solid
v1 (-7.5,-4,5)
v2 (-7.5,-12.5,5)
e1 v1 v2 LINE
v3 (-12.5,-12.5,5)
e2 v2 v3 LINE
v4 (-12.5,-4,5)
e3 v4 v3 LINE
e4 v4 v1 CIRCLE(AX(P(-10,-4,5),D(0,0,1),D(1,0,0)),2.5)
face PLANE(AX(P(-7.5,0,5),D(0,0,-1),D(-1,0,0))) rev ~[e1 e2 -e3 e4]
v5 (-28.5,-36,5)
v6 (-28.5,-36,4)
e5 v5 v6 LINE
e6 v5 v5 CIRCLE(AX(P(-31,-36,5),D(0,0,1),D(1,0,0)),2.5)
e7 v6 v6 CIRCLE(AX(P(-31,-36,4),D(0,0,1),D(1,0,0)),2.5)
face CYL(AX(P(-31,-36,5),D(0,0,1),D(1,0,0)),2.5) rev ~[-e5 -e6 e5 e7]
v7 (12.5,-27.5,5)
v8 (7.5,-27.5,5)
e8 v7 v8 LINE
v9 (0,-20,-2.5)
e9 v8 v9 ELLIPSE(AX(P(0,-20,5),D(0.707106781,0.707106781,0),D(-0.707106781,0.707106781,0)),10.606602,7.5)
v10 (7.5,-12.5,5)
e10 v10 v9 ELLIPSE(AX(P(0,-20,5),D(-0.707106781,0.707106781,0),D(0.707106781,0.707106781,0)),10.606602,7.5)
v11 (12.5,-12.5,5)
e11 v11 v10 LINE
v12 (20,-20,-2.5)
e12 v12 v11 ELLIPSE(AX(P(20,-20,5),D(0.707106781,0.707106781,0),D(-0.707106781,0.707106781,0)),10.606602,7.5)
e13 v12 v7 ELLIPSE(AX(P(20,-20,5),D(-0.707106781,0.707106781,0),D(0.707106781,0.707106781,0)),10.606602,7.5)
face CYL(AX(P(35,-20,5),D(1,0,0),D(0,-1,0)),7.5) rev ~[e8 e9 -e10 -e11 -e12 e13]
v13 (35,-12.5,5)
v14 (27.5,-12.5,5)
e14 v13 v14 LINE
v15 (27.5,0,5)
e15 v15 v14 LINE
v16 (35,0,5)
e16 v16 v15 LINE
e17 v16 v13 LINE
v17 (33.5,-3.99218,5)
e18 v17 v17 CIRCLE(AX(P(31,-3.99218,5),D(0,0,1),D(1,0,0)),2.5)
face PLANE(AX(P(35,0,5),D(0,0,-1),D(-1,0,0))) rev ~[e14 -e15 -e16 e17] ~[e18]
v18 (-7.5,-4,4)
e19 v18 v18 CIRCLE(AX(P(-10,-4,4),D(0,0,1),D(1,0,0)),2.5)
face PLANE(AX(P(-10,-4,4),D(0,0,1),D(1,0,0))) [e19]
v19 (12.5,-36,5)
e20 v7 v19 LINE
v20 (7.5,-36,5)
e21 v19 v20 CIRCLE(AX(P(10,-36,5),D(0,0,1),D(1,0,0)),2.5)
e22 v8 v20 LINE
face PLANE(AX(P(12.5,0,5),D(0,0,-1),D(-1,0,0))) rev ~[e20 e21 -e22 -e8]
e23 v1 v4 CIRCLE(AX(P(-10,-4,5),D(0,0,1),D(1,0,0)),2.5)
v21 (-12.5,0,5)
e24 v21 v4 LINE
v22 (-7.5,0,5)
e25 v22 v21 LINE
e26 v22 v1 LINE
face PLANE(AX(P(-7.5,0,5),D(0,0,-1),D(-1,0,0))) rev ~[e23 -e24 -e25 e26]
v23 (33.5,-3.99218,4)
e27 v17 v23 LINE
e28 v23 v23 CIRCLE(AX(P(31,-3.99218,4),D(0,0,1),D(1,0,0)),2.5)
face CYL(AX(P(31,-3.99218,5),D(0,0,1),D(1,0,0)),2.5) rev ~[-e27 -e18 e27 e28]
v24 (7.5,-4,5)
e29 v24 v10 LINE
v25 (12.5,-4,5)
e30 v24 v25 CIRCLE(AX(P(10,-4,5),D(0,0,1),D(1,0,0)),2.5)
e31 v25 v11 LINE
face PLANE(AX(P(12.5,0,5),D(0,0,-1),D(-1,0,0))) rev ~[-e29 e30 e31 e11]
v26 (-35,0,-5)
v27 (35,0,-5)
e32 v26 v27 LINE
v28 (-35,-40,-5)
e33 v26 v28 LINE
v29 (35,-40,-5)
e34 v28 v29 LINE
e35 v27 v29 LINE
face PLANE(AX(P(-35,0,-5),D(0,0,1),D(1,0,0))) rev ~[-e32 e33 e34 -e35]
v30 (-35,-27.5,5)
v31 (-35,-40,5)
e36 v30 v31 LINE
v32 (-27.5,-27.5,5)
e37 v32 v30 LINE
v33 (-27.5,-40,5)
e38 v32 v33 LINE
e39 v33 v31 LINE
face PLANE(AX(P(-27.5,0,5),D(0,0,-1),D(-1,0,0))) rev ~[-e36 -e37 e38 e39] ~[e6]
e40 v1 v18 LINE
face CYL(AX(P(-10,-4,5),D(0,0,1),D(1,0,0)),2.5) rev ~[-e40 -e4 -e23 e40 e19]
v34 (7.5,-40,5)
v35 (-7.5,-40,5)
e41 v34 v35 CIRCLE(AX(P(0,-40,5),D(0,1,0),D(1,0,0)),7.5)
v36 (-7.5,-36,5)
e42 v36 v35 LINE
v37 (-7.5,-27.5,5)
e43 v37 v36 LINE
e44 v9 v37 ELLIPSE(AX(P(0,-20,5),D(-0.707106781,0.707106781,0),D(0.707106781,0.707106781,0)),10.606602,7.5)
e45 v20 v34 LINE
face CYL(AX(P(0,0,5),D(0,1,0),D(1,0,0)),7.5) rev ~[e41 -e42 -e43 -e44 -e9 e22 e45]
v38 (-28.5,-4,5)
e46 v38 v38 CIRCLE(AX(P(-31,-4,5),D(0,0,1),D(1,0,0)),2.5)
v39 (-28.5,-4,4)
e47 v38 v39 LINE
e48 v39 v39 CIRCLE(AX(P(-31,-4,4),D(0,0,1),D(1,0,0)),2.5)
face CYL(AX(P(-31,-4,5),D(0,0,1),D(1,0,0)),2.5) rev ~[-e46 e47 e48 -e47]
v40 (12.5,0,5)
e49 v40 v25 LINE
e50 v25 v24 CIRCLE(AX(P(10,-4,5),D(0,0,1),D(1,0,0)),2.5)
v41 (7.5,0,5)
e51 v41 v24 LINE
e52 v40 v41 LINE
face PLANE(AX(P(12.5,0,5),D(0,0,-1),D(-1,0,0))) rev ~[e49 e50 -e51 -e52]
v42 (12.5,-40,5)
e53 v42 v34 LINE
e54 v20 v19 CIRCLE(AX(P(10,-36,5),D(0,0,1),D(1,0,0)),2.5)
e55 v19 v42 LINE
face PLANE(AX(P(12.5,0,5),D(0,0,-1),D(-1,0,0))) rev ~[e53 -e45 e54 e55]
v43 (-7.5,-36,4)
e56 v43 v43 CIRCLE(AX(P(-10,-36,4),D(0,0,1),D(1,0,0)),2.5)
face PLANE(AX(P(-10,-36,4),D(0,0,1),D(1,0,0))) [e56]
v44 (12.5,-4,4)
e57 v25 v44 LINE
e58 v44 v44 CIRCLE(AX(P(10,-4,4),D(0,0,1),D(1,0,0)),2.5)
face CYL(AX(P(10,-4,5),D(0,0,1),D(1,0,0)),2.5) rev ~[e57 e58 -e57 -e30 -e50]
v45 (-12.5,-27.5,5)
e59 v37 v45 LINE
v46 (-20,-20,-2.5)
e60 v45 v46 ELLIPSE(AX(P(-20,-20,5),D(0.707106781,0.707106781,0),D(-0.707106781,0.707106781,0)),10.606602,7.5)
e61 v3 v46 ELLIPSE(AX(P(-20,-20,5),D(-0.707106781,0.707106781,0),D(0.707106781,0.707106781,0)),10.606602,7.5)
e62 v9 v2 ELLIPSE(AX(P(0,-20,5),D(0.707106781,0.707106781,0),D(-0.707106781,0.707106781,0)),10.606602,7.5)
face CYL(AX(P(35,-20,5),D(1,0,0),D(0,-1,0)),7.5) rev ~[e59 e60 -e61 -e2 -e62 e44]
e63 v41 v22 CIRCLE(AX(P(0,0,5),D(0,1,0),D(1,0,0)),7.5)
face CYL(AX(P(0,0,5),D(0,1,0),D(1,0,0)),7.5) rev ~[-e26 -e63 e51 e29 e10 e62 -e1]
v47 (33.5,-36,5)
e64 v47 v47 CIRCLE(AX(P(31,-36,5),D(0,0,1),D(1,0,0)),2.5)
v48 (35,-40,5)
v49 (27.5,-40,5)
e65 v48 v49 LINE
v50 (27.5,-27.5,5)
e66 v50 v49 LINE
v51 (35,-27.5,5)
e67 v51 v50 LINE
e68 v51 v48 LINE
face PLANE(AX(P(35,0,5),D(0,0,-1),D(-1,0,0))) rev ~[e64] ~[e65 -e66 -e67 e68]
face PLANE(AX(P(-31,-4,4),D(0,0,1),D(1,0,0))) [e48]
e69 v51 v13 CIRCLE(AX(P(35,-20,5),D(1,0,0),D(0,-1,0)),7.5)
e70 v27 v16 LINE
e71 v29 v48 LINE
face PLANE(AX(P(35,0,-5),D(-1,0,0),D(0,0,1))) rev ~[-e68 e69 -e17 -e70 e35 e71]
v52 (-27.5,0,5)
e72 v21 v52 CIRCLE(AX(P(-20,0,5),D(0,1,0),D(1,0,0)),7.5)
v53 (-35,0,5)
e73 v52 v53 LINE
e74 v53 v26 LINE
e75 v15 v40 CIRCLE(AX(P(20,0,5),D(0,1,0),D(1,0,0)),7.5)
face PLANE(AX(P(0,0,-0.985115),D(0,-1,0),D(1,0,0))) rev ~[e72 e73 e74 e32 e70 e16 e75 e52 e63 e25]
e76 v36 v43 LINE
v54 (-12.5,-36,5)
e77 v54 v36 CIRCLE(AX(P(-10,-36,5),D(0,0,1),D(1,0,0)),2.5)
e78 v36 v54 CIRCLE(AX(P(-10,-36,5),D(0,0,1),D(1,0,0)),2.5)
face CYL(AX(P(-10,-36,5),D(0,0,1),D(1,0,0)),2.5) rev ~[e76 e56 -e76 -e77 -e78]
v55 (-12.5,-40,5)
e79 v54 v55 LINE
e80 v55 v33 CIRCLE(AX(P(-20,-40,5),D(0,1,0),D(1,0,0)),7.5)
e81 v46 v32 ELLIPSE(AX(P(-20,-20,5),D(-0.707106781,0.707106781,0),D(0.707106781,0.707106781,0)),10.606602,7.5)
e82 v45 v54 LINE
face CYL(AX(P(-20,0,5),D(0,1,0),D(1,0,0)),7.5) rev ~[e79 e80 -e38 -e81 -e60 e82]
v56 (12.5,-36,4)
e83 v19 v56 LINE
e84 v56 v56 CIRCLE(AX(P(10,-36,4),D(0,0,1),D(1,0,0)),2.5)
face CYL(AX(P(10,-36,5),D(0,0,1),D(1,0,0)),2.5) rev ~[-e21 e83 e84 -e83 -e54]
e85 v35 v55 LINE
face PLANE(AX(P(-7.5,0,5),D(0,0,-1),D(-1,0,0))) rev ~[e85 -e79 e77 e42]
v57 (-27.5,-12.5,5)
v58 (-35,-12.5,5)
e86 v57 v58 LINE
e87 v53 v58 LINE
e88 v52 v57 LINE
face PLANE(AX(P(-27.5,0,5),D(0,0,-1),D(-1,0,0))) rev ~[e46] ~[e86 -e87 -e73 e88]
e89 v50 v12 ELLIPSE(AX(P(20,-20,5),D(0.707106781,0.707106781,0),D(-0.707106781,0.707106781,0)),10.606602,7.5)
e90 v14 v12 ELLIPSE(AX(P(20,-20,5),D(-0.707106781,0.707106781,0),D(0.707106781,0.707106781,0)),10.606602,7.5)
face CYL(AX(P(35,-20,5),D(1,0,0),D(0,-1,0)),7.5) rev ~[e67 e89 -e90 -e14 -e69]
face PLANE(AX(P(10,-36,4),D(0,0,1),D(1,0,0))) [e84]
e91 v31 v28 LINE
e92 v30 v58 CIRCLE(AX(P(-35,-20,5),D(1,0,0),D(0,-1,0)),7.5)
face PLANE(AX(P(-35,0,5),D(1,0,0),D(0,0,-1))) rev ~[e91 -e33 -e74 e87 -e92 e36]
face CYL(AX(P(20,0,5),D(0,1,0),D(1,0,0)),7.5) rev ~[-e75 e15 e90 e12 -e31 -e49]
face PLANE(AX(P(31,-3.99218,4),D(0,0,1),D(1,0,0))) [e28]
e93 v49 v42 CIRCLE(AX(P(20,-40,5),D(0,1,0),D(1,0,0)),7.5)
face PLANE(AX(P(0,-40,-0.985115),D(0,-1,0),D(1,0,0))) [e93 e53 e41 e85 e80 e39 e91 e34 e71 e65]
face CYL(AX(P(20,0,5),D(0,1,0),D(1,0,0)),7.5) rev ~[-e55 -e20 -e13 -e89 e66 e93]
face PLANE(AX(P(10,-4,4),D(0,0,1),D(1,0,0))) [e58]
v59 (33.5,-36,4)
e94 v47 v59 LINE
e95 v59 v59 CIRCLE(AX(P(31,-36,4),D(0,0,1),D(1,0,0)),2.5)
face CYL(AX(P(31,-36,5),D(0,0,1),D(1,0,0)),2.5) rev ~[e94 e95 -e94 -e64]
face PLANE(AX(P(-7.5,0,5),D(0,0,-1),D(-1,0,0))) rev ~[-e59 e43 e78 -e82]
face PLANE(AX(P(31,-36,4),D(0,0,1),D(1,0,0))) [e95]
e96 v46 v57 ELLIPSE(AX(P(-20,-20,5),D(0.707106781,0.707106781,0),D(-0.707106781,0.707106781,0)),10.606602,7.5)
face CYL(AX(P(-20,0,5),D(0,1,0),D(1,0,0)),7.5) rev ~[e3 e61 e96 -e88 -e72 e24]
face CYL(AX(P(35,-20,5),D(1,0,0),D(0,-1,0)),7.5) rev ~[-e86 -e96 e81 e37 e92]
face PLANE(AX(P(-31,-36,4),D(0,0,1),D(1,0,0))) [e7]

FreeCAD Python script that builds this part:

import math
import FreeCAD as App
import Part
import Sketcher

V = App.Vector
Q = App.Units.Quantity

doc = App.newDocument("Part")
params = doc.addObject("Spreadsheet::Sheet", "Params")
for row, (alias, value) in enumerate([
    ("sketch1_radius", "7.5 mm"),
    ("sketch1_width", "70 mm"),
    ("sketch1_width2", "5 mm"),
    ("sketch1_height", "10 mm"),
    ("pad1_length", "40 mm"),
    ("sketch2_radius", "7.5 mm"),
    ("sketch3_diameter", "5 mm"),
    ("pocket2_length", "1 mm"),
    ("sketch4_diameter", "5 mm"),
    ("pocket3_length", "1 mm"),
    ("sketch5_diameter", "5 mm"),
    ("pocket4_length", "1 mm"),
    ("sketch6_diameter", "5 mm"),
    ("pocket5_length", "1 mm"),
    ("sketch7_diameter", "5 mm"),
    ("pocket6_length", "1 mm"),
    ("sketch8_diameter", "5 mm"),
    ("pocket7_length", "1 mm"),
    ("sketch9_diameter", "5 mm"),
    ("pocket8_length", "1 mm"),
    ("sketch10_diameter", "5 mm"),
    ("pocket9_length", "1 mm"),
], start=1):
    params.set(f"A{row}", alias)
    params.set(f"B{row}", "=" + value)
    params.setAlias(f"B{row}", alias)

body = doc.addObject("PartDesign::Body", "Body")

# Sketch on XZ plane
sketch1 = doc.addObject("Sketcher::SketchObject", "Sketch")
body.addObject(sketch1)
sketch1.AttachmentSupport = (doc.XZ_Plane, [""])
sketch1.MapMode = "FlatFace"
sketch1.addGeometry(Part.LineSegment(V(-35, -5, 0), V(35, -5, 0)), False)
sketch1.addGeometry(Part.LineSegment(V(35, -5, 0), V(35, 5, 0)), False)
sketch1.addGeometry(Part.LineSegment(V(35, 5, 0), V(27.5, 5, 0)), False)
sketch1.addGeometry(Part.ArcOfCircle(Part.Circle(V(20, 5, 0), V(0, 0, 1), 7.5), math.radians(180), math.radians(360)), False)
sketch1.addGeometry(Part.LineSegment(V(12.5, 5, 0), V(7.5, 5, 0)), False)
sketch1.addGeometry(Part.ArcOfCircle(Part.Circle(V(0, 5, 0), V(0, 0, 1), 7.5), math.radians(180), math.radians(360)), False)
sketch1.addGeometry(Part.LineSegment(V(-7.5, 5, 0), V(-12.5, 5, 0)), False)
sketch1.addGeometry(Part.ArcOfCircle(Part.Circle(V(-20, 5, 0), V(0, 0, 1), 7.5), math.radians(180), math.radians(360)), False)
sketch1.addGeometry(Part.LineSegment(V(-27.5, 5, 0), V(-35, 5, 0)), False)
sketch1.addGeometry(Part.LineSegment(V(-35, 5, 0), V(-35, -5, 0)), False)
sketch1.addConstraint(Sketcher.Constraint("Coincident", 0, 2, 1, 1))
sketch1.addConstraint(Sketcher.Constraint("Coincident", 1, 2, 2, 1))
sketch1.addConstraint(Sketcher.Constraint("Coincident", 2, 2, 3, 2))
sketch1.addConstraint(Sketcher.Constraint("Coincident", 3, 1, 4, 1))
sketch1.addConstraint(Sketcher.Constraint("Coincident", 4, 2, 5, 2))
sketch1.addConstraint(Sketcher.Constraint("Coincident", 5, 1, 6, 1))
sketch1.addConstraint(Sketcher.Constraint("Coincident", 6, 2, 7, 2))
sketch1.addConstraint(Sketcher.Constraint("Coincident", 7, 1, 8, 1))
sketch1.addConstraint(Sketcher.Constraint("Coincident", 8, 2, 9, 1))
sketch1.addConstraint(Sketcher.Constraint("Coincident", 9, 2, 0, 1))
sketch1.addConstraint(Sketcher.Constraint("Horizontal", 0))
sketch1.addConstraint(Sketcher.Constraint("Vertical", 1))
sketch1.addConstraint(Sketcher.Constraint("Horizontal", 2))
sketch1.addConstraint(Sketcher.Constraint("Horizontal", 4))
sketch1.addConstraint(Sketcher.Constraint("Horizontal", 6))
sketch1.addConstraint(Sketcher.Constraint("Horizontal", 8))
sketch1.addConstraint(Sketcher.Constraint("Vertical", 9))
sketch1.addConstraint(Sketcher.Constraint("Equal", 3, 5))
sketch1.addConstraint(Sketcher.Constraint("Equal", 5, 7))
sketch1.addConstraint(Sketcher.Constraint("Symmetric", 0, 2, 8, 2, -1, 1))
sketch1.addConstraint(Sketcher.Constraint("Symmetric", 3, 3, 7, 3, -2))
sketch1.addConstraint(Sketcher.Constraint("Symmetric", 4, 2, 5, 1, -2))
sketch1.addConstraint(Sketcher.Constraint("Horizontal", 3, 3, 5, 3))
sketch1.addConstraint(Sketcher.Constraint("Horizontal", 7, 3, 1, 2))
sketch1.addConstraint(Sketcher.Constraint("Horizontal", 2, 2, 3, 1))
sketch1.addConstraint(Sketcher.Constraint("Horizontal", 6, 2, 7, 1))
sketch1.addConstraint(Sketcher.Constraint("Radius", 3, Q("7.5 mm")))
sketch1.addConstraint(Sketcher.Constraint("DistanceX", 0, 1, 0, 2, Q("70 mm")))
sketch1.addConstraint(Sketcher.Constraint("DistanceX", 4, 2, 4, 1, Q("5 mm")))
sketch1.addConstraint(Sketcher.Constraint("DistanceY", 1, 1, 1, 2, Q("10 mm")))
sketch1.setExpression("Constraints[26]", "Params.sketch1_radius")
sketch1.setExpression("Constraints[27]", "Params.sketch1_width")
sketch1.setExpression("Constraints[28]", "Params.sketch1_width2")
sketch1.setExpression("Constraints[29]", "Params.sketch1_height")
pad1 = doc.addObject("PartDesign::Pad", "Pad")
body.addObject(pad1)
pad1.Profile = sketch1
pad1.setExpression("Length", "Params.pad1_length")

# Sketch on YZ plane
sketch2 = doc.addObject("Sketcher::SketchObject", "Sketch001")
body.addObject(sketch2)
sketch2.AttachmentSupport = (doc.YZ_Plane, [""])
sketch2.MapMode = "FlatFace"
sketch2.AttachmentOffset = App.Placement(V(0, 0, 35), App.Rotation())
sketch2.addGeometry(Part.ArcOfCircle(Part.Circle(V(-20, 5, 0), V(0, 0, 1), 7.5), math.radians(180), math.radians(360)), False)
sketch2.addGeometry(Part.LineSegment(V(-12.5, 5, 0), V(-27.5, 5, 0)), False)
sketch2.addConstraint(Sketcher.Constraint("Coincident", 0, 1, 1, 2))
sketch2.addConstraint(Sketcher.Constraint("Coincident", 1, 1, 0, 2))
sketch2.addConstraint(Sketcher.Constraint("Horizontal", 1))
sketch2.addConstraint(Sketcher.Constraint("Radius", 0, Q("7.5 mm")))
sketch2.addConstraint(Sketcher.Constraint("DistanceX", 0, 3, -1, 1, Q("20 mm")))
sketch2.addConstraint(Sketcher.Constraint("DistanceY", -1, 1, 0, 3, Q("5 mm")))
sketch2.addConstraint(Sketcher.Constraint("DistanceY", -1, 1, 0, 1, Q("5 mm")))
sketch2.setExpression("Constraints[3]", "Params.sketch2_radius")
pocket1 = doc.addObject("PartDesign::Pocket", "Pocket")
body.addObject(pocket1)
pocket1.Profile = sketch2
pocket1.Type = "ThroughAll"

# Sketch on XY plane
sketch3 = doc.addObject("Sketcher::SketchObject", "Sketch002")
body.addObject(sketch3)
sketch3.AttachmentSupport = (doc.XY_Plane, [""])
sketch3.MapMode = "FlatFace"
sketch3.AttachmentOffset = App.Placement(V(0, 0, 5), App.Rotation())
sketch3.addGeometry(Part.Circle(V(31, -36, 0), V(0, 0, 1), 2.5), False)
sketch3.addConstraint(Sketcher.Constraint("Diameter", 0, Q("5 mm")))
sketch3.addConstraint(Sketcher.Constraint("DistanceX", -1, 1, 0, 3, Q("31 mm")))
sketch3.addConstraint(Sketcher.Constraint("DistanceY", 0, 3, -1, 1, Q("36 mm")))
sketch3.setExpression("Constraints[0]", "Params.sketch3_diameter")
pocket2 = doc.addObject("PartDesign::Pocket", "Pocket001")
body.addObject(pocket2)
pocket2.Profile = sketch3
pocket2.setExpression("Length", "Params.pocket2_length")

# Sketch on XY plane
sketch4 = doc.addObject("Sketcher::SketchObject", "Sketch003")
body.addObject(sketch4)
sketch4.AttachmentSupport = (doc.XY_Plane, [""])
sketch4.MapMode = "FlatFace"
sketch4.AttachmentOffset = App.Placement(V(0, 0, 5), App.Rotation())
sketch4.addGeometry(Part.Circle(V(31, -3.99218, 0), V(0, 0, 1), 2.5), False)
sketch4.addConstraint(Sketcher.Constraint("Diameter", 0, Q("5 mm")))
sketch4.addConstraint(Sketcher.Constraint("DistanceX", -1, 1, 0, 3, Q("31 mm")))
sketch4.addConstraint(Sketcher.Constraint("DistanceY", 0, 3, -1, 1, Q("3.99218 mm")))
sketch4.setExpression("Constraints[0]", "Params.sketch4_diameter")
pocket3 = doc.addObject("PartDesign::Pocket", "Pocket002")
body.addObject(pocket3)
pocket3.Profile = sketch4
pocket3.setExpression("Length", "Params.pocket3_length")

# Sketch on XY plane
sketch5 = doc.addObject("Sketcher::SketchObject", "Sketch004")
body.addObject(sketch5)
sketch5.AttachmentSupport = (doc.XY_Plane, [""])
sketch5.MapMode = "FlatFace"
sketch5.AttachmentOffset = App.Placement(V(0, 0, 5), App.Rotation())
sketch5.addGeometry(Part.Circle(V(-31, -36, 0), V(0, 0, 1), 2.5), False)
sketch5.addConstraint(Sketcher.Constraint("Diameter", 0, Q("5 mm")))
sketch5.addConstraint(Sketcher.Constraint("DistanceX", 0, 3, -1, 1, Q("31 mm")))
sketch5.addConstraint(Sketcher.Constraint("DistanceY", 0, 3, -1, 1, Q("36 mm")))
sketch5.setExpression("Constraints[0]", "Params.sketch5_diameter")
pocket4 = doc.addObject("PartDesign::Pocket", "Pocket003")
body.addObject(pocket4)
pocket4.Profile = sketch5
pocket4.setExpression("Length", "Params.pocket4_length")

# Sketch on XY plane
sketch6 = doc.addObject("Sketcher::SketchObject", "Sketch005")
body.addObject(sketch6)
sketch6.AttachmentSupport = (doc.XY_Plane, [""])
sketch6.MapMode = "FlatFace"
sketch6.AttachmentOffset = App.Placement(V(0, 0, 5), App.Rotation())
sketch6.addGeometry(Part.Circle(V(-31, -4, 0), V(0, 0, 1), 2.5), False)
sketch6.addConstraint(Sketcher.Constraint("Diameter", 0, Q("5 mm")))
sketch6.addConstraint(Sketcher.Constraint("DistanceX", 0, 3, -1, 1, Q("31 mm")))
sketch6.addConstraint(Sketcher.Constraint("DistanceY", 0, 3, -1, 1, Q("4 mm")))
sketch6.setExpression("Constraints[0]", "Params.sketch6_diameter")
pocket5 = doc.addObject("PartDesign::Pocket", "Pocket004")
body.addObject(pocket5)
pocket5.Profile = sketch6
pocket5.setExpression("Length", "Params.pocket5_length")

# Sketch on XY plane
sketch7 = doc.addObject("Sketcher::SketchObject", "Sketch006")
body.addObject(sketch7)
sketch7.AttachmentSupport = (doc.XY_Plane, [""])
sketch7.MapMode = "FlatFace"
sketch7.AttachmentOffset = App.Placement(V(0, 0, 5), App.Rotation())
sketch7.addGeometry(Part.Circle(V(-10, -4, 0), V(0, 0, 1), 2.5), False)
sketch7.addConstraint(Sketcher.Constraint("Diameter", 0, Q("5 mm")))
sketch7.addConstraint(Sketcher.Constraint("DistanceX", 0, 3, -1, 1, Q("10 mm")))
sketch7.addConstraint(Sketcher.Constraint("DistanceY", 0, 3, -1, 1, Q("4 mm")))
sketch7.setExpression("Constraints[0]", "Params.sketch7_diameter")
pocket6 = doc.addObject("PartDesign::Pocket", "Pocket005")
body.addObject(pocket6)
pocket6.Profile = sketch7
pocket6.setExpression("Length", "Params.pocket6_length")

# Sketch on XY plane
sketch8 = doc.addObject("Sketcher::SketchObject", "Sketch007")
body.addObject(sketch8)
sketch8.AttachmentSupport = (doc.XY_Plane, [""])
sketch8.MapMode = "FlatFace"
sketch8.AttachmentOffset = App.Placement(V(0, 0, 5), App.Rotation())
sketch8.addGeometry(Part.Circle(V(10, -4, 0), V(0, 0, 1), 2.5), False)
sketch8.addConstraint(Sketcher.Constraint("Diameter", 0, Q("5 mm")))
sketch8.addConstraint(Sketcher.Constraint("DistanceX", -1, 1, 0, 3, Q("10 mm")))
sketch8.addConstraint(Sketcher.Constraint("DistanceY", 0, 3, -1, 1, Q("4 mm")))
sketch8.setExpression("Constraints[0]", "Params.sketch8_diameter")
pocket7 = doc.addObject("PartDesign::Pocket", "Pocket006")
body.addObject(pocket7)
pocket7.Profile = sketch8
pocket7.setExpression("Length", "Params.pocket7_length")

# Sketch on XY plane
sketch9 = doc.addObject("Sketcher::SketchObject", "Sketch008")
body.addObject(sketch9)
sketch9.AttachmentSupport = (doc.XY_Plane, [""])
sketch9.MapMode = "FlatFace"
sketch9.AttachmentOffset = App.Placement(V(0, 0, 5), App.Rotation())
sketch9.addGeometry(Part.Circle(V(-10, -36, 0), V(0, 0, 1), 2.5), False)
sketch9.addConstraint(Sketcher.Constraint("Diameter", 0, Q("5 mm")))
sketch9.addConstraint(Sketcher.Constraint("DistanceX", 0, 3, -1, 1, Q("10 mm")))
sketch9.addConstraint(Sketcher.Constraint("DistanceY", 0, 3, -1, 1, Q("36 mm")))
sketch9.setExpression("Constraints[0]", "Params.sketch9_diameter")
pocket8 = doc.addObject("PartDesign::Pocket", "Pocket007")
body.addObject(pocket8)
pocket8.Profile = sketch9
pocket8.setExpression("Length", "Params.pocket8_length")

# Sketch on XY plane
sketch10 = doc.addObject("Sketcher::SketchObject", "Sketch009")
body.addObject(sketch10)
sketch10.AttachmentSupport = (doc.XY_Plane, [""])
sketch10.MapMode = "FlatFace"
sketch10.AttachmentOffset = App.Placement(V(0, 0, 5), App.Rotation())
sketch10.addGeometry(Part.Circle(V(10, -36, 0), V(0, 0, 1), 2.5), False)
sketch10.addConstraint(Sketcher.Constraint("Diameter", 0, Q("5 mm")))
sketch10.addConstraint(Sketcher.Constraint("DistanceX", -1, 1, 0, 3, Q("10 mm")))
sketch10.addConstraint(Sketcher.Constraint("DistanceY", 0, 3, -1, 1, Q("36 mm")))
sketch10.setExpression("Constraints[0]", "Params.sketch10_diameter")
pocket9 = doc.addObject("PartDesign::Pocket", "Pocket008")
body.addObject(pocket9)
pocket9.Profile = sketch10
pocket9.setExpression("Length", "Params.pocket9_length")

doc.recompute()
